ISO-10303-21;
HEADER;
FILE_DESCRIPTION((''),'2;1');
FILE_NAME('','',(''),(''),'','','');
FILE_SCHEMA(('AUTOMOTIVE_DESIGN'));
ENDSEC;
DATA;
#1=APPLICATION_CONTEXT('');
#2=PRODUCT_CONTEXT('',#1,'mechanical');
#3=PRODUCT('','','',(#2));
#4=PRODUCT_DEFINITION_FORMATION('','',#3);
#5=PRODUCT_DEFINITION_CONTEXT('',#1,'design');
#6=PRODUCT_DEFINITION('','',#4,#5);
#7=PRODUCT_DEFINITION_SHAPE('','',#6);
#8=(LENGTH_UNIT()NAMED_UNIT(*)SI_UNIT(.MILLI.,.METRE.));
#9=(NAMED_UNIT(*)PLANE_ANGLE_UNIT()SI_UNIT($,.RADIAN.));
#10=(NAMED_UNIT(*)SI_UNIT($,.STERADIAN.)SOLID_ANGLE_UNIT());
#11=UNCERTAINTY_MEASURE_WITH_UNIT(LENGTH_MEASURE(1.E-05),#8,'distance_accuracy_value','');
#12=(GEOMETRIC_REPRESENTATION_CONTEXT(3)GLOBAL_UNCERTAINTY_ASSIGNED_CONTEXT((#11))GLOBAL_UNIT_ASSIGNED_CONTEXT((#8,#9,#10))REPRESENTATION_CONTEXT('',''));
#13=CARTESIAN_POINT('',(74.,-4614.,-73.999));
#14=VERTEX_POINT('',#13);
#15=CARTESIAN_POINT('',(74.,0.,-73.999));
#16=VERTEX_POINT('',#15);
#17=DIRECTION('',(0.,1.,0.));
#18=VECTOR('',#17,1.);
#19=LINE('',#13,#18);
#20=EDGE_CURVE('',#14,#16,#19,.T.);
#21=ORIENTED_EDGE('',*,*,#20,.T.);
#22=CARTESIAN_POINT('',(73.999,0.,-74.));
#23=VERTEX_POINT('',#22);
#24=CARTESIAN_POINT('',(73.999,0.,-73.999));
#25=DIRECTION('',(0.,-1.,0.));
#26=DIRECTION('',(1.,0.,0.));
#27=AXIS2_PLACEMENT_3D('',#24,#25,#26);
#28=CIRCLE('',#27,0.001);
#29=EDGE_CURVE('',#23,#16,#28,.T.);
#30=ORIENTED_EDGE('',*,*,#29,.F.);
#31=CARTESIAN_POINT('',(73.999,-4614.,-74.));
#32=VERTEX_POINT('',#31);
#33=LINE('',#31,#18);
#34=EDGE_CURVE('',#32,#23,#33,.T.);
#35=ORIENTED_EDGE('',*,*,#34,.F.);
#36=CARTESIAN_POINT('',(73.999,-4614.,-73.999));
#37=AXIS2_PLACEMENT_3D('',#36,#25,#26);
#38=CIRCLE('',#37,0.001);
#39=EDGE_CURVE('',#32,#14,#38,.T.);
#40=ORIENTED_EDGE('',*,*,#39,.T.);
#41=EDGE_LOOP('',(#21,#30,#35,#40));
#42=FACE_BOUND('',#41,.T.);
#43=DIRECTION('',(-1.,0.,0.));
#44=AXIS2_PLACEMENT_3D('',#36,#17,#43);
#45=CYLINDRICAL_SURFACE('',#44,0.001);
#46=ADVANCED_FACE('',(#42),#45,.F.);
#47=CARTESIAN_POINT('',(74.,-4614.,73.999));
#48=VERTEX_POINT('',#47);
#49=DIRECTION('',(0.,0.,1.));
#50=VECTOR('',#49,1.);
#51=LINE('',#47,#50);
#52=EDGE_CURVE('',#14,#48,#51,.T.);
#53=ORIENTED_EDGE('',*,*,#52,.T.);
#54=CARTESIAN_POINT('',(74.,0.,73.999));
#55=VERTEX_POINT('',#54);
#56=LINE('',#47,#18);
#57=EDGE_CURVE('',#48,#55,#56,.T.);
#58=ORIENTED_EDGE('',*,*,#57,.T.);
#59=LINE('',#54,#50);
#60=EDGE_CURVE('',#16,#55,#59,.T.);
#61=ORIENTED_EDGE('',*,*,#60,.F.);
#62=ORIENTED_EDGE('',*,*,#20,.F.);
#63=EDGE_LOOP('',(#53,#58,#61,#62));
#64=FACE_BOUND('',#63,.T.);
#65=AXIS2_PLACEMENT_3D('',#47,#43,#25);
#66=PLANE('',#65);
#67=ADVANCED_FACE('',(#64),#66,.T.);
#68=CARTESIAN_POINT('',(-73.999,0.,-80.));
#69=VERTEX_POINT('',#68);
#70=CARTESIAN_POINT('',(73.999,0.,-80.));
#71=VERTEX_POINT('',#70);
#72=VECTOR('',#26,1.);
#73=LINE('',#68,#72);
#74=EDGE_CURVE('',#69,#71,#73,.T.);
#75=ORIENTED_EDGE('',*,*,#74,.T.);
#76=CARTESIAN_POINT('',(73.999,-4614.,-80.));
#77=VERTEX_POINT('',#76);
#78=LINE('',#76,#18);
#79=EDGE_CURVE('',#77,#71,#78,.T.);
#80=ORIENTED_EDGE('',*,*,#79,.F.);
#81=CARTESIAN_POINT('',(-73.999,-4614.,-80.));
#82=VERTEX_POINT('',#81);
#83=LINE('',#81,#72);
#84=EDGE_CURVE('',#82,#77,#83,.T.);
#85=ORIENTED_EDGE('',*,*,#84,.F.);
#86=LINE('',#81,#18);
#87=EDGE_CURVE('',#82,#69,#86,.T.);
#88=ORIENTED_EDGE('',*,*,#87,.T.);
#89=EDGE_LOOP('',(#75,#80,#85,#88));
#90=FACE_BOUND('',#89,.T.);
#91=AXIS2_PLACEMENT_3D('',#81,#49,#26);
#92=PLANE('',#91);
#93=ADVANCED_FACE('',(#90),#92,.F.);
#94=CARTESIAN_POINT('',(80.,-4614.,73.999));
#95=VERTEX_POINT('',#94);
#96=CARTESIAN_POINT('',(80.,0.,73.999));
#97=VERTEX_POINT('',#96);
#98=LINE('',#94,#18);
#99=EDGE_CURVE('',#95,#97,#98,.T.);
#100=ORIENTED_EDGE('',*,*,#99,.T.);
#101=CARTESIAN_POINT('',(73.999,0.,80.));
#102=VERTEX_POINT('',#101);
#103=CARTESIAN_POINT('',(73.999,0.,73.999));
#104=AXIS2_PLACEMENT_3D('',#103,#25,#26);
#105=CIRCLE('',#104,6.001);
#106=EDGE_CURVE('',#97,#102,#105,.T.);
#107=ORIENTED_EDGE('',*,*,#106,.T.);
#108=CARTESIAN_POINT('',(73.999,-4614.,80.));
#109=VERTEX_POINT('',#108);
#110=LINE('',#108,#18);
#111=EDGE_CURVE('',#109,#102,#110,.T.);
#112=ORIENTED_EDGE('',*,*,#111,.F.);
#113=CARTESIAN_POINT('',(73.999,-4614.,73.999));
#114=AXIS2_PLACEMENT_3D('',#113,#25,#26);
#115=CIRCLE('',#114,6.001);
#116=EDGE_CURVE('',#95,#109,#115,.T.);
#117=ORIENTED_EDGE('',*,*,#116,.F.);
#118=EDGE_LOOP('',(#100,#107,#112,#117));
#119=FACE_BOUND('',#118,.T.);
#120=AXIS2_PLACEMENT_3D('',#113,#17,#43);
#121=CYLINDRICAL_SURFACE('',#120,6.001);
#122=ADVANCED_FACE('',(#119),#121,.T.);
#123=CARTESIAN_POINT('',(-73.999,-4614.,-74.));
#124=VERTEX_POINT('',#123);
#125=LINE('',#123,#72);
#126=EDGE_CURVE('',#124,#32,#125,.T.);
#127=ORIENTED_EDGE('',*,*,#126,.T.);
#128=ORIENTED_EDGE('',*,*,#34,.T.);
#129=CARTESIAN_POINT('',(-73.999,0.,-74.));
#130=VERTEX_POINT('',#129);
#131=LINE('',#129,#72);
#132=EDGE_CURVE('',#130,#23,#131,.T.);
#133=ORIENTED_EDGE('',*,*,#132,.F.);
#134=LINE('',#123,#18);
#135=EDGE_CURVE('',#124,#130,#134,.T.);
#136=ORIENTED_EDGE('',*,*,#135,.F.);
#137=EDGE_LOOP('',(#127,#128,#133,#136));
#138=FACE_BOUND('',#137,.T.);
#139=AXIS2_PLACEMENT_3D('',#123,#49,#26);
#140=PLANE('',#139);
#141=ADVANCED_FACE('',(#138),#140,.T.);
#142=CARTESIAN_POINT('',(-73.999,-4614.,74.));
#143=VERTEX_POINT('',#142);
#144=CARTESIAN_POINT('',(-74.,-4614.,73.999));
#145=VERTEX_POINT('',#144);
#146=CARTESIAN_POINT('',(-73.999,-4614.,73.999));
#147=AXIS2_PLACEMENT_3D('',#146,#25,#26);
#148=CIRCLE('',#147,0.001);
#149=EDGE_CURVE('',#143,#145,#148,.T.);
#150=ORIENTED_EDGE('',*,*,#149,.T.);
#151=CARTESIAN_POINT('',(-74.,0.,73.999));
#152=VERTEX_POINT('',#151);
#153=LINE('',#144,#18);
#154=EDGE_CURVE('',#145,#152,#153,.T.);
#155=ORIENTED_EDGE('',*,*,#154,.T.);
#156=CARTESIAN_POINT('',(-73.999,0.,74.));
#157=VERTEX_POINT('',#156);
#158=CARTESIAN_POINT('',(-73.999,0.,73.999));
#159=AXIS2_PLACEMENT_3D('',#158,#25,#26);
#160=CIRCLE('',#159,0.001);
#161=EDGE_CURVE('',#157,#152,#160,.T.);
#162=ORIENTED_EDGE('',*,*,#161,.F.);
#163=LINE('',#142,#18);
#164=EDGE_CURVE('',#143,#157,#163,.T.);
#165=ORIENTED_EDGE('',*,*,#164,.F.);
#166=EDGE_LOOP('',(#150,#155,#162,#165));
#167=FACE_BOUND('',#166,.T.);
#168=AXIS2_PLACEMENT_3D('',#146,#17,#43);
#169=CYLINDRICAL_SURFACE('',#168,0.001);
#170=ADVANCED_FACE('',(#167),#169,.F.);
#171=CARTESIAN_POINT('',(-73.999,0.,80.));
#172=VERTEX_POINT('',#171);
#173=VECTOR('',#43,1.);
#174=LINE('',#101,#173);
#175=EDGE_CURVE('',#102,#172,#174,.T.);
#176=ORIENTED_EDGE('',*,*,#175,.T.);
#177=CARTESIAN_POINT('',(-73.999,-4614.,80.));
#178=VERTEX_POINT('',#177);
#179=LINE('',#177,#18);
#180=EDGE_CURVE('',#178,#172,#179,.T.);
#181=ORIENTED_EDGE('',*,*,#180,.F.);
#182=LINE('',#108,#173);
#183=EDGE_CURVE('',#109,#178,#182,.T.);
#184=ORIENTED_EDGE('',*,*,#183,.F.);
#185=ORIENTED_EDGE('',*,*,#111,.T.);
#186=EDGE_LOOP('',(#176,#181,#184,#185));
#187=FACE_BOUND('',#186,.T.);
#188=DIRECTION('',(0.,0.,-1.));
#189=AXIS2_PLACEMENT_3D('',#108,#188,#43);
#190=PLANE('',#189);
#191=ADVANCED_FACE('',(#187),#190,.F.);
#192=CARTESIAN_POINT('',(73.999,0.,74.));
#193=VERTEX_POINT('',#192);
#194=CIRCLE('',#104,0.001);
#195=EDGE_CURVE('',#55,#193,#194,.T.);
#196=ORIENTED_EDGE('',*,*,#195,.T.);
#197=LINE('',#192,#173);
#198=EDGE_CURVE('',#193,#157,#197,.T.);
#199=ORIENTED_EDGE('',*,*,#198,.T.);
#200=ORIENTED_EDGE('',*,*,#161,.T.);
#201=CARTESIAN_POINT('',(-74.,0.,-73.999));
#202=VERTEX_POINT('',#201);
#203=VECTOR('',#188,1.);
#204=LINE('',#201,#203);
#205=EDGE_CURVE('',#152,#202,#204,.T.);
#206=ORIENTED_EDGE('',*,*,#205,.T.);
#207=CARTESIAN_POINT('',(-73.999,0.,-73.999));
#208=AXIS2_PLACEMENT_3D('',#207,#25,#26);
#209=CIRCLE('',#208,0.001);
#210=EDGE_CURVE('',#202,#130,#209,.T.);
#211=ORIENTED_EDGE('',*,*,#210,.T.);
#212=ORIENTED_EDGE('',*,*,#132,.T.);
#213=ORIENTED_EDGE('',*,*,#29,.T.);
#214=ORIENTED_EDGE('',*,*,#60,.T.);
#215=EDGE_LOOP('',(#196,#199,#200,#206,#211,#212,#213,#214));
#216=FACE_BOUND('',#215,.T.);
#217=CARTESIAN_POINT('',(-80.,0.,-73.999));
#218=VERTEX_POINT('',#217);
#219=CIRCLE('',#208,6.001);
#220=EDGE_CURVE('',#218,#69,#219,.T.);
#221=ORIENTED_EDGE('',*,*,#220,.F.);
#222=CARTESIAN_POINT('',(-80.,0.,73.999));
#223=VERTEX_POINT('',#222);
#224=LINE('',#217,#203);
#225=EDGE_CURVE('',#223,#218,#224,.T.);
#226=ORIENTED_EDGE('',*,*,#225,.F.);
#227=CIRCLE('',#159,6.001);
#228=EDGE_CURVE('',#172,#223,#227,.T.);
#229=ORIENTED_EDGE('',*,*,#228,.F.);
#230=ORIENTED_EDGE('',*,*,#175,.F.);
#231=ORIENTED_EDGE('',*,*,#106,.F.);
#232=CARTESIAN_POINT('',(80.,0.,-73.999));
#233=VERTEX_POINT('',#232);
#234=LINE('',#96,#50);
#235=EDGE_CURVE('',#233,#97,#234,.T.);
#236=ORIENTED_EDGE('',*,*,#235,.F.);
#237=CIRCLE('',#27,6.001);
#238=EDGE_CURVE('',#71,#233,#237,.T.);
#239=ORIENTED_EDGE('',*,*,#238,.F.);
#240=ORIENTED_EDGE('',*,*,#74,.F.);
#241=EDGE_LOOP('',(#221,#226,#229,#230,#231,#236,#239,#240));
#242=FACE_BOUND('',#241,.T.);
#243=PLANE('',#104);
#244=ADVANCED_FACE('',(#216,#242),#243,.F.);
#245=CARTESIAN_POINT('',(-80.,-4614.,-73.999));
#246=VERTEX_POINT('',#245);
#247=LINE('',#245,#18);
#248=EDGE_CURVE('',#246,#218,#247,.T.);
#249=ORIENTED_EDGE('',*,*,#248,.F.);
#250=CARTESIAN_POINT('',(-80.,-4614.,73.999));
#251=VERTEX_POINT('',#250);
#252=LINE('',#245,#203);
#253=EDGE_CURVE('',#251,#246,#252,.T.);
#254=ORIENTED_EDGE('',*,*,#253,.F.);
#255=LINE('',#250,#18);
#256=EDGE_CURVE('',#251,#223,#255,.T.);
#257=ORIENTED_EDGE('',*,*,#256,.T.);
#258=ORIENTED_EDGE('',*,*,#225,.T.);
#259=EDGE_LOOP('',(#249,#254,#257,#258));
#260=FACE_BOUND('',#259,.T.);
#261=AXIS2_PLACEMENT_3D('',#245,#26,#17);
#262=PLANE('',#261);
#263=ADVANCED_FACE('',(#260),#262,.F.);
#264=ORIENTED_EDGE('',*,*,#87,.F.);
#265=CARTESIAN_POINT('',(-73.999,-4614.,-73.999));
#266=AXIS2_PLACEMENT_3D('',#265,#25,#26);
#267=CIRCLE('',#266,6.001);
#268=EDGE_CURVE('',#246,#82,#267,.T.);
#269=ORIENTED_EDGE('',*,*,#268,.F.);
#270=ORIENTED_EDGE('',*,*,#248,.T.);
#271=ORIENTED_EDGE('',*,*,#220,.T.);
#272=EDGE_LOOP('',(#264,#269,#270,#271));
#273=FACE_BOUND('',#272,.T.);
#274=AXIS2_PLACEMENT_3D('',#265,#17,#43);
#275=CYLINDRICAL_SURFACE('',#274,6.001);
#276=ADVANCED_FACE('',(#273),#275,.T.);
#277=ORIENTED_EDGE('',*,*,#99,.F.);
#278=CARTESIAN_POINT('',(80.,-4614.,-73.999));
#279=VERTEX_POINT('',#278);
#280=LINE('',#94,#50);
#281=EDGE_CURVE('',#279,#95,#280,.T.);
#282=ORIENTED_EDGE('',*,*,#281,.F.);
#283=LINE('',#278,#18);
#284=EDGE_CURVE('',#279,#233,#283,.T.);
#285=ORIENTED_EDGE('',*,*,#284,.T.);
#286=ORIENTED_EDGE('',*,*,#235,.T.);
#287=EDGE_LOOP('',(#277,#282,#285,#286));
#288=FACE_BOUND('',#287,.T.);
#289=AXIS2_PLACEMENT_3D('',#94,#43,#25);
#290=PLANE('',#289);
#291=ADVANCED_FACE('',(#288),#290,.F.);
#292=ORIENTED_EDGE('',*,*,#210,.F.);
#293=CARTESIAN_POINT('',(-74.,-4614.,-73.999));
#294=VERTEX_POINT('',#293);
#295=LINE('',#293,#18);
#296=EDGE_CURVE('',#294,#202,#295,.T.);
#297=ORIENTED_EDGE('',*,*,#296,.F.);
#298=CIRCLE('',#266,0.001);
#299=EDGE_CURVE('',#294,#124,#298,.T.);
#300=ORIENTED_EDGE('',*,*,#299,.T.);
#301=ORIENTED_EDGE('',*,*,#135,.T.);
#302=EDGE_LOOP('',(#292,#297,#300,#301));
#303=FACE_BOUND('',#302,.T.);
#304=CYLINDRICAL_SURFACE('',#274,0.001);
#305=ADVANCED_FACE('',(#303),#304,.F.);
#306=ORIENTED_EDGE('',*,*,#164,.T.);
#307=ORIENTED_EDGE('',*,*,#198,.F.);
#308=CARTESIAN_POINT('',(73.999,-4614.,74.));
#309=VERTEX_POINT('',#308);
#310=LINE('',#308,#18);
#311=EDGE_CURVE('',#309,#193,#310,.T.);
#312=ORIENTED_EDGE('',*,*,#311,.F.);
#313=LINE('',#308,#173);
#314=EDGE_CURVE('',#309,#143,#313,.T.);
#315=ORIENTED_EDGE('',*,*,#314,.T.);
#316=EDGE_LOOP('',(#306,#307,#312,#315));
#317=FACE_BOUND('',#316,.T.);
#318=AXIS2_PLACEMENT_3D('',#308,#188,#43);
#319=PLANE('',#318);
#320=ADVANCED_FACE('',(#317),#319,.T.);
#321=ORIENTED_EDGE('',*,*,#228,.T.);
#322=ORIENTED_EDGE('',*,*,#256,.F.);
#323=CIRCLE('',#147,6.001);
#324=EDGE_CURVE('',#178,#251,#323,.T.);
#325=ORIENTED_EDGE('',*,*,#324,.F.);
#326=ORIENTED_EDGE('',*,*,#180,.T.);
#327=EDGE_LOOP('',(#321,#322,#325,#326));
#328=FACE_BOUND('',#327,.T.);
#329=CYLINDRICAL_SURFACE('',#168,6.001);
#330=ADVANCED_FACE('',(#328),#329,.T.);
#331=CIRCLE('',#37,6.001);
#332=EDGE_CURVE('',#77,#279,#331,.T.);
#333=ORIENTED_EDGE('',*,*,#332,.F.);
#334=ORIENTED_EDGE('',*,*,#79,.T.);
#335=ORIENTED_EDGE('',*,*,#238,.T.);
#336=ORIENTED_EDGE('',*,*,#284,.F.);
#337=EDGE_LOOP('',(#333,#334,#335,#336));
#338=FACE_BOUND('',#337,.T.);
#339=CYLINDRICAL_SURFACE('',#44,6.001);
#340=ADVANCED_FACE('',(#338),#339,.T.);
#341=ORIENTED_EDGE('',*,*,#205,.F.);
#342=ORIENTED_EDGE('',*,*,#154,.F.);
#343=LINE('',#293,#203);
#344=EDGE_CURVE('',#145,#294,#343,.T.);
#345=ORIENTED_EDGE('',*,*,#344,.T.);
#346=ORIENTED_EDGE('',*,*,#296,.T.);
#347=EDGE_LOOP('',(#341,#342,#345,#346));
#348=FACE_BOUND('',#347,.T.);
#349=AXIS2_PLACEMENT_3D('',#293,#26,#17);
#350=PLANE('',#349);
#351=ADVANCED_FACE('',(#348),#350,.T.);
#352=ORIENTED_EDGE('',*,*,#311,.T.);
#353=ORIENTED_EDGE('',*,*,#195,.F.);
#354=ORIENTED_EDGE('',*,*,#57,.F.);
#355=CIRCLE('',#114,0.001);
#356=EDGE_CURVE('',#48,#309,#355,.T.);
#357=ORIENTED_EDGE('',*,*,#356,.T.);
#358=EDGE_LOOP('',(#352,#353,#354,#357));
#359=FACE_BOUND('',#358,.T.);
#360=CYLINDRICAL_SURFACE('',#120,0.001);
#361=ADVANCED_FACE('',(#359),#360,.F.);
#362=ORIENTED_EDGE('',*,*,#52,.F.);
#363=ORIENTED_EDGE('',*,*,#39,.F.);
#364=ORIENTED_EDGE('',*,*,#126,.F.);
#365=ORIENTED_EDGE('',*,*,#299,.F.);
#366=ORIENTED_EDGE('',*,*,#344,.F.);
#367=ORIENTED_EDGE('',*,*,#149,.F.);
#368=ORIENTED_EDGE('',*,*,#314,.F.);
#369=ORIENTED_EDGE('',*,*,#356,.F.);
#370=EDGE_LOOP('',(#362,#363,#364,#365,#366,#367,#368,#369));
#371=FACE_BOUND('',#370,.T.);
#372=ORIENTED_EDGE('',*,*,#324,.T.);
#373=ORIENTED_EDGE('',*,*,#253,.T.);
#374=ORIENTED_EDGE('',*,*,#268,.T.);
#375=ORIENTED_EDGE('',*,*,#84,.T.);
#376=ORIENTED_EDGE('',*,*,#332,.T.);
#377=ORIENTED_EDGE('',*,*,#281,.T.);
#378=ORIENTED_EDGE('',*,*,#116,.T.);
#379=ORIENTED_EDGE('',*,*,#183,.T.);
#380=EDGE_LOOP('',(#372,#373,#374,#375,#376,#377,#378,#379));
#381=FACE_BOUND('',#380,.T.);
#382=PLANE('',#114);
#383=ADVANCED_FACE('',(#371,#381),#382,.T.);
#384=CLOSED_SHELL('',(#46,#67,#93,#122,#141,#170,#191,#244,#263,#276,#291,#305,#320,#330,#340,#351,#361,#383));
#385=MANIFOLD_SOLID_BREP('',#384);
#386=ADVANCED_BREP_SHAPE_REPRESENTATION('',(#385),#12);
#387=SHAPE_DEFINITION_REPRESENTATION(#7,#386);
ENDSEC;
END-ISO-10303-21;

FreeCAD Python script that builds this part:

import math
import FreeCAD as App
import Part
import Sketcher
from FreeCAD import Vector

doc = App.newDocument("Part")
body = doc.addObject("PartDesign::Body", "Body")

sketch1 = body.newObject("Sketcher::SketchObject", "Sketch")
sketch1.AttachmentSupport = (doc.getObject("XZ_Plane"), [""])
sketch1.MapMode = "FlatFace"
sketch1.addGeometry(Part.LineSegment(Vector(-73.999, -80, 0), Vector(73.999, -80, 0)), False)
sketch1.addGeometry(Part.ArcOfCircle(Part.Circle(Vector(73.999, -73.999, 0), Vector(0, 0, 1), 6.001), math.radians(-90), math.radians(0)), False)
sketch1.addGeometry(Part.LineSegment(Vector(80, -73.999, 0), Vector(80, 73.999, 0)), False)
sketch1.addGeometry(Part.ArcOfCircle(Part.Circle(Vector(73.999, 73.999, 0), Vector(0, 0, 1), 6.001), math.radians(0), math.radians(90)), False)
sketch1.addGeometry(Part.LineSegment(Vector(73.999, 80, 0), Vector(-73.999, 80, 0)), False)
sketch1.addGeometry(Part.ArcOfCircle(Part.Circle(Vector(-73.999, 73.999, 0), Vector(0, 0, 1), 6.001), math.radians(90), math.radians(180)), False)
sketch1.addGeometry(Part.LineSegment(Vector(-80, 73.999, 0), Vector(-80, -73.999, 0)), False)
sketch1.addGeometry(Part.ArcOfCircle(Part.Circle(Vector(-73.999, -73.999, 0), Vector(0, 0, 1), 6.001), math.radians(180), math.radians(270)), False)
sketch1.addGeometry(Part.LineSegment(Vector(73.999, -74, 0), Vector(-73.999, -74, 0)), False)
sketch1.addGeometry(Part.ArcOfCircle(Part.Circle(Vector(-73.999, -73.999, 0), Vector(0, 0, 1), 0.001), math.radians(180), math.radians(270)), False)
sketch1.addGeometry(Part.LineSegment(Vector(-74, -73.999, 0), Vector(-74, 73.999, 0)), False)
sketch1.addGeometry(Part.ArcOfCircle(Part.Circle(Vector(-73.999, 73.999, 0), Vector(0, 0, 1), 0.001), math.radians(90), math.radians(180)), False)
sketch1.addGeometry(Part.LineSegment(Vector(-73.999, 74, 0), Vector(73.999, 74, 0)), False)
sketch1.addGeometry(Part.ArcOfCircle(Part.Circle(Vector(73.999, 73.999, 0), Vector(0, 0, 1), 0.001), math.radians(0), math.radians(90)), False)
sketch1.addGeometry(Part.LineSegment(Vector(74, 73.999, 0), Vector(74, -73.999, 0)), False)
sketch1.addGeometry(Part.ArcOfCircle(Part.Circle(Vector(73.999, -73.999, 0), Vector(0, 0, 1), 0.001), math.radians(-90), math.radians(0)), False)
sketch1.addConstraint(Sketcher.Constraint("Tangent", 0, 2, 1, 1))
sketch1.addConstraint(Sketcher.Constraint("Tangent", 1, 2, 2, 1))
sketch1.addConstraint(Sketcher.Constraint("Tangent", 2, 2, 3, 1))
sketch1.addConstraint(Sketcher.Constraint("Tangent", 3, 2, 4, 1))
sketch1.addConstraint(Sketcher.Constraint("Tangent", 4, 2, 5, 1))
sketch1.addConstraint(Sketcher.Constraint("Tangent", 5, 2, 6, 1))
sketch1.addConstraint(Sketcher.Constraint("Tangent", 6, 2, 7, 1))
sketch1.addConstraint(Sketcher.Constraint("Tangent", 7, 2, 0, 1))
sketch1.addConstraint(Sketcher.Constraint("Tangent", 8, 2, 9, 2))
sketch1.addConstraint(Sketcher.Constraint("Tangent", 9, 1, 10, 1))
sketch1.addConstraint(Sketcher.Constraint("Tangent", 10, 2, 11, 2))
sketch1.addConstraint(Sketcher.Constraint("Tangent", 11, 1, 12, 1))
sketch1.addConstraint(Sketcher.Constraint("Tangent", 12, 2, 13, 2))
sketch1.addConstraint(Sketcher.Constraint("Tangent", 13, 1, 14, 1))
sketch1.addConstraint(Sketcher.Constraint("Tangent", 14, 2, 15, 2))
sketch1.addConstraint(Sketcher.Constraint("Tangent", 15, 1, 8, 1))
sketch1.addConstraint(Sketcher.Constraint("Horizontal", 0))
sketch1.addConstraint(Sketcher.Constraint("Vertical", 2))
sketch1.addConstraint(Sketcher.Constraint("Horizontal", 4))
sketch1.addConstraint(Sketcher.Constraint("Vertical", 6))
sketch1.addConstraint(Sketcher.Constraint("Horizontal", 8))
sketch1.addConstraint(Sketcher.Constraint("Vertical", 10))
sketch1.addConstraint(Sketcher.Constraint("Horizontal", 12))
sketch1.addConstraint(Sketcher.Constraint("Vertical", 14))
sketch1.addConstraint(Sketcher.Constraint("Coincident", 9, 3, 7, 3))
sketch1.addConstraint(Sketcher.Constraint("Coincident", 11, 3, 5, 3))
sketch1.addConstraint(Sketcher.Constraint("Coincident", 13, 3, 3, 3))
sketch1.addConstraint(Sketcher.Constraint("Equal", 1, 3))
sketch1.addConstraint(Sketcher.Constraint("Equal", 3, 5))
sketch1.addConstraint(Sketcher.Constraint("Equal", 5, 7))
sketch1.addConstraint(Sketcher.Constraint("Equal", 13, 15))
sketch1.addConstraint(Sketcher.Constraint("Symmetric", 1, 3, 5, 3, -1, 1))
sketch1.addConstraint(Sketcher.Constraint("Equal", 12, 2))
sketch1.addConstraint(Sketcher.Constraint("DistanceY", 0, 2, -1, 1, 80.0))
sketch1.addConstraint(Sketcher.Constraint("DistanceY", 8, 2, -1, 1, 74.0))
sketch1.addConstraint(Sketcher.Constraint("Radius", 1, 6.001))
pad1 = body.newObject("PartDesign::Pad", "Pad")
pad1.Profile = sketch1
pad1.Length = 4614

doc.recompute()
